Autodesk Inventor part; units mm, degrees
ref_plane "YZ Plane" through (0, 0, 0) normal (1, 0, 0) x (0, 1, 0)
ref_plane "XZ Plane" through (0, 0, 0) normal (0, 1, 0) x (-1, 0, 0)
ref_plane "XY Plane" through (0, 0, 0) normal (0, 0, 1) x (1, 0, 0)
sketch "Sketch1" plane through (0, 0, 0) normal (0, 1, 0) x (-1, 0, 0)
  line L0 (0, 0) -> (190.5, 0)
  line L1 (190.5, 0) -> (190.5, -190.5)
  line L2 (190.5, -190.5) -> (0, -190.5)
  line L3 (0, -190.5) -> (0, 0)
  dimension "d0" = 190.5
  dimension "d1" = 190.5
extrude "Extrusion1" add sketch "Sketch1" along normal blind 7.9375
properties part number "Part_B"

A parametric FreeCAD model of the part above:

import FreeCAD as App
import Part
import Sketcher

V = App.Vector
Q = App.Units.Quantity


def add_polygon(sketch, points):
    """Adds a closed chain of lines whose ends are joined by coincident constraints."""
    first, n = sketch.GeometryCount, len(points)
    for a, b in zip(points, points[1:] + points[:1]):
        sketch.addGeometry(Part.LineSegment(App.Vector(*a, 0), App.Vector(*b, 0)), False)
    for i in range(n):
        sketch.addConstraint(Sketcher.Constraint("Coincident", first + i, 2, first + (i + 1) % n, 1))

doc = App.newDocument("Part")
body = doc.addObject("PartDesign::Body", "Body")

sketch1 = body.newObject("Sketcher::SketchObject", "Sketch")
sketch1.AttachmentSupport = (doc.getObject("XZ_Plane"), [""])
sketch1.MapMode = "FlatFace"
add_polygon(sketch1, [(-190.5, 0), (0, 0), (0, -190.5), (-190.5, -190.5)])
sketch1.addConstraint(Sketcher.Constraint("Horizontal", 0))
sketch1.addConstraint(Sketcher.Constraint("Vertical", 1))
sketch1.addConstraint(Sketcher.Constraint("Horizontal", 2))
sketch1.addConstraint(Sketcher.Constraint("Vertical", 3))
sketch1.addConstraint(Sketcher.Constraint("Coincident", 0, 2, -1, 1))
sketch1.addConstraint(Sketcher.Constraint("Equal", 2, 1))
sketch1.addConstraint(Sketcher.Constraint("DistanceX", 0, 1, 0, 2, Q("7.5 in")))
pad1 = body.newObject("PartDesign::Pad", "Pad")
pad1.Profile = sketch1
pad1.Length = Q("0.3125 in")
pad1.Reversed = True

doc.recompute()
